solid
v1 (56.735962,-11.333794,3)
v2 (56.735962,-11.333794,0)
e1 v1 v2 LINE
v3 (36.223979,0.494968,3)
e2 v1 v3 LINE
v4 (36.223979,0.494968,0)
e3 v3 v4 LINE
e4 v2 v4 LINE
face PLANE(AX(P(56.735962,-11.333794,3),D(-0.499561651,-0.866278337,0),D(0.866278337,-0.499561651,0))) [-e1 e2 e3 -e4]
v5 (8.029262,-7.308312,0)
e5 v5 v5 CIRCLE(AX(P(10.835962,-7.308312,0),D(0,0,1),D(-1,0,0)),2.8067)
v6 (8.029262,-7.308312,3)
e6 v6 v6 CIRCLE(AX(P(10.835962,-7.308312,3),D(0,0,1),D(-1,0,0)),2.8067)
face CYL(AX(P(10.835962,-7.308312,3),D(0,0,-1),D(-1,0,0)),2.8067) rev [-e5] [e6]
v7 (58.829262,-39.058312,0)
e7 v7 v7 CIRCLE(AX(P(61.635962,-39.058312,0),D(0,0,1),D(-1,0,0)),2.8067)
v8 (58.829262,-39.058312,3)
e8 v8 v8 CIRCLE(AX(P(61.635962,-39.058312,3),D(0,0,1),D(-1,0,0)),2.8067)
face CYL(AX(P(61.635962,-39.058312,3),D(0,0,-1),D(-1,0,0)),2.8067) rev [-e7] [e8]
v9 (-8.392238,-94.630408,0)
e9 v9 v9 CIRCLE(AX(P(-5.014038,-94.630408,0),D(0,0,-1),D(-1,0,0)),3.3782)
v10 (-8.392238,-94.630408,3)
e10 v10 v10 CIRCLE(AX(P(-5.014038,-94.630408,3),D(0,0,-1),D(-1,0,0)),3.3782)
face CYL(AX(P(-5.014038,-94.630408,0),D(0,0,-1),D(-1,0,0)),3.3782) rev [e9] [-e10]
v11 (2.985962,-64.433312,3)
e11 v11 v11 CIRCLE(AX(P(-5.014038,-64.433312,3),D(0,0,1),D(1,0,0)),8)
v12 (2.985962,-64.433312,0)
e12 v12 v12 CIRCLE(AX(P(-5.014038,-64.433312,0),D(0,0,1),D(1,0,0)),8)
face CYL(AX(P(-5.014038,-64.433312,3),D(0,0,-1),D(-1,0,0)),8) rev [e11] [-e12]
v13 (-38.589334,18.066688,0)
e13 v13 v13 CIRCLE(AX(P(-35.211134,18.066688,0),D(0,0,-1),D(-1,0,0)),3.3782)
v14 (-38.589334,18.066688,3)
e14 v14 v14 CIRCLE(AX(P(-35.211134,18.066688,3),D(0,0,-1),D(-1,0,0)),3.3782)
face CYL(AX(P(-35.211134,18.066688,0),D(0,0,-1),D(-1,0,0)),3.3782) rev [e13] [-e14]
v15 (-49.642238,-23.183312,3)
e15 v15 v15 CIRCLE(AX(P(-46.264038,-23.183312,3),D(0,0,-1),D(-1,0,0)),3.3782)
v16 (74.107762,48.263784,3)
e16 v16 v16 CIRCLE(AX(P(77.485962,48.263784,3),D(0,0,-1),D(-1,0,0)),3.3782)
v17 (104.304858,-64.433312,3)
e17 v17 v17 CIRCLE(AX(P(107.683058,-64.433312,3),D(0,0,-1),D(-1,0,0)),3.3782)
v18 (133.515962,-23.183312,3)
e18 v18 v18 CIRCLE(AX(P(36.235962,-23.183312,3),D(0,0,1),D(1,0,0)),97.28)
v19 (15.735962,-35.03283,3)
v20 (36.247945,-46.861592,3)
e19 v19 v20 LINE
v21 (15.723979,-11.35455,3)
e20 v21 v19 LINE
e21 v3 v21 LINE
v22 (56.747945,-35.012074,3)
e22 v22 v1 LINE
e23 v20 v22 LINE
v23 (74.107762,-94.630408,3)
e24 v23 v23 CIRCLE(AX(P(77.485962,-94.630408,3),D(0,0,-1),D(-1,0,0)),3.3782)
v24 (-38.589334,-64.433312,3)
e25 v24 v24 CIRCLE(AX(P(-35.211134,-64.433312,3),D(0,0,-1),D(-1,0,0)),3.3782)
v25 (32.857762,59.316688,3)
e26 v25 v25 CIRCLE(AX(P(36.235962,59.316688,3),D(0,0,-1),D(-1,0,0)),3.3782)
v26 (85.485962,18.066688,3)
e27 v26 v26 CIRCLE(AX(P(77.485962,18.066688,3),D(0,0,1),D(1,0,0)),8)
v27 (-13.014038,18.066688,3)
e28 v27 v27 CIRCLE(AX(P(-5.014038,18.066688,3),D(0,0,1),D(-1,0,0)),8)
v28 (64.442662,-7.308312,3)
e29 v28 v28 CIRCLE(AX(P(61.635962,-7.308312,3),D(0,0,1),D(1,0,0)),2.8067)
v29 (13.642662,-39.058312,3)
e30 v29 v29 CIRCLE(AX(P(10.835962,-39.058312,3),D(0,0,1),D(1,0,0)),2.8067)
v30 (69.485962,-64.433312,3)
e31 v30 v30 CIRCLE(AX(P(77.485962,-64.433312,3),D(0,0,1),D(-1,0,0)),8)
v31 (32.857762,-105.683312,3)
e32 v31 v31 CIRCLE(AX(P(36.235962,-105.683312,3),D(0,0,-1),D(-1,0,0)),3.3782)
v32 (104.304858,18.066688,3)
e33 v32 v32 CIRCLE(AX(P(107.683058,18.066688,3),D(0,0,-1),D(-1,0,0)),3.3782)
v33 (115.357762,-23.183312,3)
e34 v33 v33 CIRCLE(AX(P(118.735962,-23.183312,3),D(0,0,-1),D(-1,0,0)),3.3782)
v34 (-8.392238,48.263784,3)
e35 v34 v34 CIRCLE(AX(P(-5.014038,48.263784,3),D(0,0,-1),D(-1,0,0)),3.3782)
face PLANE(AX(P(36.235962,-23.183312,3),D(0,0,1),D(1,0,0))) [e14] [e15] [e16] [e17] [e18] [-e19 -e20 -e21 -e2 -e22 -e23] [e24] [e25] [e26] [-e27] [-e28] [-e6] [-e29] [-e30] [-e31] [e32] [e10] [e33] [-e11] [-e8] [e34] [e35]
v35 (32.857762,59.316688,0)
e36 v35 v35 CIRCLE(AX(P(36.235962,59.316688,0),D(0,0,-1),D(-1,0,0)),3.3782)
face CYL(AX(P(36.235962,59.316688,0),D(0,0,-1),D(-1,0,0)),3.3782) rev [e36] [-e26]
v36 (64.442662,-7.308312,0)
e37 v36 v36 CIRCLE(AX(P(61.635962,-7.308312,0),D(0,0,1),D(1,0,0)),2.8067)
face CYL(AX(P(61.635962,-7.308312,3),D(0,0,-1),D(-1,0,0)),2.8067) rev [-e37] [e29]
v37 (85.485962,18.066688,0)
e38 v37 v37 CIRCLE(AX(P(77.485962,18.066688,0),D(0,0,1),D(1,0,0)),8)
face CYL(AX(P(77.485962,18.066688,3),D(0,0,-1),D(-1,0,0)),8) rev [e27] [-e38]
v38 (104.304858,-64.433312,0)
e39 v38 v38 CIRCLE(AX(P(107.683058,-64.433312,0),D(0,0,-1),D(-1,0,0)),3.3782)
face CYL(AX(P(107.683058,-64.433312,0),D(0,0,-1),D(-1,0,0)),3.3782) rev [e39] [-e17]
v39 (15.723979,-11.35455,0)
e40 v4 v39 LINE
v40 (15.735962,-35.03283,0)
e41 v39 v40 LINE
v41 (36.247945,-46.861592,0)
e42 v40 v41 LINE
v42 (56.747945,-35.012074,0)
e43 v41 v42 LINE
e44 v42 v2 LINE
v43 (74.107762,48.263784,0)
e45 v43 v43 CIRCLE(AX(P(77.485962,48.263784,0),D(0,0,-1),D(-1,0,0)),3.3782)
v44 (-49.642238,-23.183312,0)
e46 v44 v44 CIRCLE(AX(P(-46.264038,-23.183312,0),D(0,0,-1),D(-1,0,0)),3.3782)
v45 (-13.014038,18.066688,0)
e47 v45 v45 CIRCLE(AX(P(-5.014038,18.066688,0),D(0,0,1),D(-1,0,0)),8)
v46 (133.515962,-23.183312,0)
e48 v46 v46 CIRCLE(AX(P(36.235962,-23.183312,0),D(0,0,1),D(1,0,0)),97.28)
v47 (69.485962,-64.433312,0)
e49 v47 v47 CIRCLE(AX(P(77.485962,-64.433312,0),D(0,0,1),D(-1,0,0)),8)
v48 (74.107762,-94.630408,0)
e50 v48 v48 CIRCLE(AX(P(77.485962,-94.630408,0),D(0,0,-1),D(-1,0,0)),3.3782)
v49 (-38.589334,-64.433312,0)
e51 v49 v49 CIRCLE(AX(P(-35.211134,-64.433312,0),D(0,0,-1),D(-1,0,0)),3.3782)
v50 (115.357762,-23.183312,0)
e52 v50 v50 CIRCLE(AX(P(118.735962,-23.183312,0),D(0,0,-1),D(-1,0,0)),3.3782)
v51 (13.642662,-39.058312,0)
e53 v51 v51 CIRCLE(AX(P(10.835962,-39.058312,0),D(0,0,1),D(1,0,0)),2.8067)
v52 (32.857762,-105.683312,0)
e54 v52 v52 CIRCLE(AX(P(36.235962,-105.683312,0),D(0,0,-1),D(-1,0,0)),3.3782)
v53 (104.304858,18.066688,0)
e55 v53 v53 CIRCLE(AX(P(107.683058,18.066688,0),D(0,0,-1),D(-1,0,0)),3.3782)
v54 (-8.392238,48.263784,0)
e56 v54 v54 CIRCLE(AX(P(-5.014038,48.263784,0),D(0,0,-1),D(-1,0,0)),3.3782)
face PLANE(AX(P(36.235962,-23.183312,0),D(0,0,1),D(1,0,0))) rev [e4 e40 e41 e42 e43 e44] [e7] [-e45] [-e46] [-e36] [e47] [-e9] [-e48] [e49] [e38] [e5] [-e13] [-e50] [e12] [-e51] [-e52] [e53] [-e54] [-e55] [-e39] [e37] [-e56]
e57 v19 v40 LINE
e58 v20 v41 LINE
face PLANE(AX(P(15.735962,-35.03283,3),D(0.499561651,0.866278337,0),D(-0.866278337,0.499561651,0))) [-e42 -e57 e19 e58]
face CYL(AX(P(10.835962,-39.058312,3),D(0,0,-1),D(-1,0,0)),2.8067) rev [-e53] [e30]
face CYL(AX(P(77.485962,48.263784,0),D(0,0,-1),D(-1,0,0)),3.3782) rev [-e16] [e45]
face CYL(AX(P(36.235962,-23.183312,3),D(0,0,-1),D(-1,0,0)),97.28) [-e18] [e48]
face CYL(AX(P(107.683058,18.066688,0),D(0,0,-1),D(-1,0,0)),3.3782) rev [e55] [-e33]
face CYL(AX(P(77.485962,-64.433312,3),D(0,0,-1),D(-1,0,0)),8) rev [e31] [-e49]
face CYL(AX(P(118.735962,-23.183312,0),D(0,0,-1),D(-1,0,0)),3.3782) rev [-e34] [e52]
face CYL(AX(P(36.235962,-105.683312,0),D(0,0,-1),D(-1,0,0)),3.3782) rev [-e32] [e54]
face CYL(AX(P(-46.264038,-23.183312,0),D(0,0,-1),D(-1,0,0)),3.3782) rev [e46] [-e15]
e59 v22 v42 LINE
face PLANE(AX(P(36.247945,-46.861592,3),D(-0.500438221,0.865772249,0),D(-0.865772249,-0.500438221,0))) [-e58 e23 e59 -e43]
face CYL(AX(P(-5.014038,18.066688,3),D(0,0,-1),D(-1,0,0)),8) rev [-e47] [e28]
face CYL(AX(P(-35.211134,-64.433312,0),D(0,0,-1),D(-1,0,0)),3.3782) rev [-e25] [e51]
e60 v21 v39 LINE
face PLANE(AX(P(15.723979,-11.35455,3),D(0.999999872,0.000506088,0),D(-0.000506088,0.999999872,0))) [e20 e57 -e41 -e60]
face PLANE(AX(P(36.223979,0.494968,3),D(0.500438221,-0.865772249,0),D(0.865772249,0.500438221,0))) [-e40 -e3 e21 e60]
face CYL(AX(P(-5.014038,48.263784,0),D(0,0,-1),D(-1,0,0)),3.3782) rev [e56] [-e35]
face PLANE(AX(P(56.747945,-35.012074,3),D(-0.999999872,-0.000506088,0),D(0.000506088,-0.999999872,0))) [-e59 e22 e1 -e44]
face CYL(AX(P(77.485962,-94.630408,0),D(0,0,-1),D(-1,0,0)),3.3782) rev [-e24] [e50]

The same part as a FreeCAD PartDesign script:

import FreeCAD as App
import Part
import Sketcher
from FreeCAD import Vector


def add_polygon(sketch, points):
    """Adds a closed chain of lines whose ends are joined by coincident constraints."""
    first, n = sketch.GeometryCount, len(points)
    for a, b in zip(points, points[1:] + points[:1]):
        sketch.addGeometry(Part.LineSegment(App.Vector(*a, 0), App.Vector(*b, 0)), False)
    for i in range(n):
        sketch.addConstraint(Sketcher.Constraint("Coincident", first + i, 2, first + (i + 1) % n, 1))

doc = App.newDocument("Part")
body = doc.addObject("PartDesign::Body", "Body")

sketch1 = doc.addObject("Sketcher::SketchObject", "Sketch")
body.addObject(sketch1)
sketch1.AttachmentSupport = (doc.XY_Plane, [""])
sketch1.MapMode = "FlatFace"
sketch1.addGeometry(Part.Circle(Vector(36.235962, -23.183312, 0), Vector(0, 0, 1), 97.28), False)
sketch1.addGeometry(Part.Circle(Vector(-5.014038, -64.433312, 0), Vector(0, 0, 1), 8), False)
sketch1.addGeometry(Part.Circle(Vector(10.835962, -39.058312, 0), Vector(0, 0, 1), 2.8067), False)
add_polygon(sketch1, [(36.247945, -46.861592), (15.735962, -35.03283), (15.723979, -11.35455), (36.223979, 0.494968), (56.735962, -11.333794), (56.747945, -35.012074)])
sketch1.addGeometry(Part.Circle(Vector(77.485962, -64.433312, 0), Vector(0, 0, 1), 8), False)
sketch1.addGeometry(Part.Circle(Vector(61.635962, -39.058312, 0), Vector(0, 0, 1), 2.8067), False)
sketch1.addGeometry(Part.Circle(Vector(10.835962, -7.308312, 0), Vector(0, 0, 1), 2.8067), False)
sketch1.addGeometry(Part.Circle(Vector(-5.014038, 18.066688, 0), Vector(0, 0, 1), 8), False)
sketch1.addGeometry(Part.Circle(Vector(61.635962, -7.308312, 0), Vector(0, 0, 1), 2.8067), False)
sketch1.addGeometry(Part.Circle(Vector(77.485962, 18.066688, 0), Vector(0, 0, 1), 8), False)
sketch1.addConstraint([
    Sketcher.Constraint("Equal", 1, 9),
    Sketcher.Constraint("Equal", 2, 10),
    Sketcher.Constraint("Equal", 10, 11),
    Sketcher.Constraint("Equal", 9, 12),
    Sketcher.Constraint("Equal", 11, 13),
    Sketcher.Constraint("Equal", 12, 14),
    Sketcher.Constraint("Parallel", 3, 6),
    Sketcher.Constraint("Parallel", 4, 7),
    Sketcher.Constraint("Parallel", 5, 8),
    Sketcher.Constraint("Horizontal", 1, 3, 9, 3),
    Sketcher.Constraint("Horizontal", 2, 3, 10, 3),
    Sketcher.Constraint("Horizontal", 11, 3, 13, 3),
    Sketcher.Constraint("Horizontal", 12, 3, 14, 3),
    Sketcher.Constraint("Vertical", 2, 3, 11, 3),
    Sketcher.Constraint("Vertical", 1, 3, 12, 3),
    Sketcher.Constraint("Vertical", 10, 3, 13, 3),
    Sketcher.Constraint("Vertical", 9, 3, 14, 3),
    Sketcher.Constraint("Equal", 3, 4),
    Sketcher.Constraint("Equal", 4, 5),
    Sketcher.Constraint("Equal", 5, 6),
    Sketcher.Constraint("Diameter", 1, 16.0),
    Sketcher.Constraint("Diameter", 0, 194.56),
    Sketcher.Constraint("Diameter", 2, 5.6134),
    Sketcher.Constraint("DistanceX", 2, 3, 0, 3, 25.4),
    Sketcher.Constraint("DistanceX", 1, 3, 9, 3, 82.5),
    Sketcher.Constraint("DistanceX", 0, 3, 10, 3, 25.4),
    Sketcher.Constraint("DistanceY", 1, 3, 12, 3, 82.5),
    Sketcher.Constraint("DistanceX", 2, 3, 3, 2, 4.9),
    Sketcher.Constraint("DistanceX", 4, 2, 5, 2, 20.5),
    Sketcher.Constraint("DistanceX", 6, 2, 13, 3, 4.9),
    Sketcher.Constraint("DistanceX", 1, 3, 0, 3, 41.25),
    Sketcher.Constraint("DistanceY", 1, 3, 0, 3, 41.25),
    Sketcher.Constraint("DistanceY", 2, 3, 11, 3, 31.75),
    Sketcher.Constraint("DistanceY", 1, 3, 2, 3, 25.375),
    Sketcher.Constraint("DistanceY", 3, 2, -1, 1, 35.03283),
    Sketcher.Constraint("DistanceX", -1, 1, 4, 2, 15.723979),
    Sketcher.Constraint("DistanceY", 4, 2, -1, 1, 11.35455),
    Sketcher.Constraint("DistanceY", 8, 2, -1, 1, 46.861592),
    Sketcher.Constraint("DistanceY", 4, 2, 11, 3, 4.046238),
])
pad1 = doc.addObject("PartDesign::Pad", "Pad")
body.addObject(pad1)
pad1.Profile = sketch1
pad1.Length = 3

sketch2 = doc.addObject("Sketcher::SketchObject", "Sketch001")
body.addObject(sketch2)
sketch2.AttachmentSupport = (doc.XY_Plane, [""])
sketch2.MapMode = "FlatFace"
sketch2.addGeometry([
    Part.Circle(Vector(118.735962, -23.183312, 0), Vector(0, 0, 1), 3.3782),
    Part.Circle(Vector(107.683058, -64.433312, 0), Vector(0, 0, 1), 3.3782),
    Part.Circle(Vector(-46.264038, -23.183312, 0), Vector(0, 0, 1), 3.3782),
    Part.Circle(Vector(-35.211134, -64.433312, 0), Vector(0, 0, 1), 3.3782),
    Part.Circle(Vector(77.485962, -94.630408, 0), Vector(0, 0, 1), 3.3782),
    Part.Circle(Vector(36.235962, -105.683312, 0), Vector(0, 0, 1), 3.3782),
    Part.Circle(Vector(-5.014038, -94.630408, 0), Vector(0, 0, 1), 3.3782),
    Part.Circle(Vector(-35.211134, 18.066688, 0), Vector(0, 0, 1), 3.3782),
    Part.Circle(Vector(-5.014038, 48.263784, 0), Vector(0, 0, 1), 3.3782),
    Part.Circle(Vector(36.235962, 59.316688, 0), Vector(0, 0, 1), 3.3782),
    Part.Circle(Vector(77.485962, 48.263784, 0), Vector(0, 0, 1), 3.3782),
    Part.Circle(Vector(107.683058, 18.066688, 0), Vector(0, 0, 1), 3.3782),
], False)
sketch2.addConstraint([
    Sketcher.Constraint("Equal", 0, 1),
    Sketcher.Constraint("Equal", 1, 2),
    Sketcher.Constraint("Equal", 2, 3),
    Sketcher.Constraint("Equal", 3, 4),
    Sketcher.Constraint("Equal", 4, 5),
    Sketcher.Constraint("Equal", 5, 6),
    Sketcher.Constraint("Equal", 6, 7),
    Sketcher.Constraint("Equal", 7, 8),
    Sketcher.Constraint("Equal", 8, 9),
    Sketcher.Constraint("Equal", 9, 10),
    Sketcher.Constraint("Equal", 10, 11),
    Sketcher.Constraint("Horizontal", 0, 3, 2, 3),
    Sketcher.Constraint("Horizontal", 1, 3, 3, 3),
    Sketcher.Constraint("Horizontal", 4, 3, 6, 3),
    Sketcher.Constraint("Horizontal", 8, 3, 10, 3),
    Sketcher.Constraint("Horizontal", 7, 3, 11, 3),
    Sketcher.Constraint("Vertical", 3, 3, 7, 3),
    Sketcher.Constraint("Vertical", 6, 3, 8, 3),
    Sketcher.Constraint("Vertical", 5, 3, 9, 3),
    Sketcher.Constraint("Vertical", 4, 3, 10, 3),
    Sketcher.Constraint("Vertical", 1, 3, 11, 3),
    Sketcher.Constraint("DistanceX", 2, 3, 0, 3, 165.0),
    Sketcher.Constraint("Diameter", 0, 6.7564),
    Sketcher.Constraint("DistanceX", 5, 3, 0, 3, 82.5),
    Sketcher.Constraint("DistanceY", 5, 3, 0, 3, 82.5),
    Sketcher.Constraint("DistanceX", 6, 3, 4, 3, 82.5),
    Sketcher.Constraint("DistanceY", 3, 3, 7, 3, 82.5),
    Sketcher.Constraint("DistanceY", 0, 3, 9, 3, 82.5),
    Sketcher.Constraint("DistanceY", 1, 3, 0, 3, 41.25),
    Sketcher.Constraint("DistanceX", 4, 3, 0, 3, 41.25),
    Sketcher.Constraint("DistanceX", 3, 3, 1, 3, 142.894192),
    Sketcher.Constraint("DistanceY", 6, 3, 8, 3, 142.894192),
    Sketcher.Constraint("DistanceX", -1, 1, 0, 3, 118.735962),
    Sketcher.Constraint("DistanceY", 0, 3, -1, 1, 23.183312),
    Sketcher.Constraint("DistanceX", -1, 1, 1, 3, 107.683058),
    Sketcher.Constraint("DistanceY", 4, 3, -1, 1, 94.630408),
])
doc.recompute()
hole = doc.addObject("PartDesign::Hole", "Hole")
body.addObject(hole)
hole.Profile = sketch2
hole.ThreadType = "None"
hole.Diameter = 6.7564
hole.DepthType = "ThroughAll"
hole.Reversed = True

doc.recompute()
